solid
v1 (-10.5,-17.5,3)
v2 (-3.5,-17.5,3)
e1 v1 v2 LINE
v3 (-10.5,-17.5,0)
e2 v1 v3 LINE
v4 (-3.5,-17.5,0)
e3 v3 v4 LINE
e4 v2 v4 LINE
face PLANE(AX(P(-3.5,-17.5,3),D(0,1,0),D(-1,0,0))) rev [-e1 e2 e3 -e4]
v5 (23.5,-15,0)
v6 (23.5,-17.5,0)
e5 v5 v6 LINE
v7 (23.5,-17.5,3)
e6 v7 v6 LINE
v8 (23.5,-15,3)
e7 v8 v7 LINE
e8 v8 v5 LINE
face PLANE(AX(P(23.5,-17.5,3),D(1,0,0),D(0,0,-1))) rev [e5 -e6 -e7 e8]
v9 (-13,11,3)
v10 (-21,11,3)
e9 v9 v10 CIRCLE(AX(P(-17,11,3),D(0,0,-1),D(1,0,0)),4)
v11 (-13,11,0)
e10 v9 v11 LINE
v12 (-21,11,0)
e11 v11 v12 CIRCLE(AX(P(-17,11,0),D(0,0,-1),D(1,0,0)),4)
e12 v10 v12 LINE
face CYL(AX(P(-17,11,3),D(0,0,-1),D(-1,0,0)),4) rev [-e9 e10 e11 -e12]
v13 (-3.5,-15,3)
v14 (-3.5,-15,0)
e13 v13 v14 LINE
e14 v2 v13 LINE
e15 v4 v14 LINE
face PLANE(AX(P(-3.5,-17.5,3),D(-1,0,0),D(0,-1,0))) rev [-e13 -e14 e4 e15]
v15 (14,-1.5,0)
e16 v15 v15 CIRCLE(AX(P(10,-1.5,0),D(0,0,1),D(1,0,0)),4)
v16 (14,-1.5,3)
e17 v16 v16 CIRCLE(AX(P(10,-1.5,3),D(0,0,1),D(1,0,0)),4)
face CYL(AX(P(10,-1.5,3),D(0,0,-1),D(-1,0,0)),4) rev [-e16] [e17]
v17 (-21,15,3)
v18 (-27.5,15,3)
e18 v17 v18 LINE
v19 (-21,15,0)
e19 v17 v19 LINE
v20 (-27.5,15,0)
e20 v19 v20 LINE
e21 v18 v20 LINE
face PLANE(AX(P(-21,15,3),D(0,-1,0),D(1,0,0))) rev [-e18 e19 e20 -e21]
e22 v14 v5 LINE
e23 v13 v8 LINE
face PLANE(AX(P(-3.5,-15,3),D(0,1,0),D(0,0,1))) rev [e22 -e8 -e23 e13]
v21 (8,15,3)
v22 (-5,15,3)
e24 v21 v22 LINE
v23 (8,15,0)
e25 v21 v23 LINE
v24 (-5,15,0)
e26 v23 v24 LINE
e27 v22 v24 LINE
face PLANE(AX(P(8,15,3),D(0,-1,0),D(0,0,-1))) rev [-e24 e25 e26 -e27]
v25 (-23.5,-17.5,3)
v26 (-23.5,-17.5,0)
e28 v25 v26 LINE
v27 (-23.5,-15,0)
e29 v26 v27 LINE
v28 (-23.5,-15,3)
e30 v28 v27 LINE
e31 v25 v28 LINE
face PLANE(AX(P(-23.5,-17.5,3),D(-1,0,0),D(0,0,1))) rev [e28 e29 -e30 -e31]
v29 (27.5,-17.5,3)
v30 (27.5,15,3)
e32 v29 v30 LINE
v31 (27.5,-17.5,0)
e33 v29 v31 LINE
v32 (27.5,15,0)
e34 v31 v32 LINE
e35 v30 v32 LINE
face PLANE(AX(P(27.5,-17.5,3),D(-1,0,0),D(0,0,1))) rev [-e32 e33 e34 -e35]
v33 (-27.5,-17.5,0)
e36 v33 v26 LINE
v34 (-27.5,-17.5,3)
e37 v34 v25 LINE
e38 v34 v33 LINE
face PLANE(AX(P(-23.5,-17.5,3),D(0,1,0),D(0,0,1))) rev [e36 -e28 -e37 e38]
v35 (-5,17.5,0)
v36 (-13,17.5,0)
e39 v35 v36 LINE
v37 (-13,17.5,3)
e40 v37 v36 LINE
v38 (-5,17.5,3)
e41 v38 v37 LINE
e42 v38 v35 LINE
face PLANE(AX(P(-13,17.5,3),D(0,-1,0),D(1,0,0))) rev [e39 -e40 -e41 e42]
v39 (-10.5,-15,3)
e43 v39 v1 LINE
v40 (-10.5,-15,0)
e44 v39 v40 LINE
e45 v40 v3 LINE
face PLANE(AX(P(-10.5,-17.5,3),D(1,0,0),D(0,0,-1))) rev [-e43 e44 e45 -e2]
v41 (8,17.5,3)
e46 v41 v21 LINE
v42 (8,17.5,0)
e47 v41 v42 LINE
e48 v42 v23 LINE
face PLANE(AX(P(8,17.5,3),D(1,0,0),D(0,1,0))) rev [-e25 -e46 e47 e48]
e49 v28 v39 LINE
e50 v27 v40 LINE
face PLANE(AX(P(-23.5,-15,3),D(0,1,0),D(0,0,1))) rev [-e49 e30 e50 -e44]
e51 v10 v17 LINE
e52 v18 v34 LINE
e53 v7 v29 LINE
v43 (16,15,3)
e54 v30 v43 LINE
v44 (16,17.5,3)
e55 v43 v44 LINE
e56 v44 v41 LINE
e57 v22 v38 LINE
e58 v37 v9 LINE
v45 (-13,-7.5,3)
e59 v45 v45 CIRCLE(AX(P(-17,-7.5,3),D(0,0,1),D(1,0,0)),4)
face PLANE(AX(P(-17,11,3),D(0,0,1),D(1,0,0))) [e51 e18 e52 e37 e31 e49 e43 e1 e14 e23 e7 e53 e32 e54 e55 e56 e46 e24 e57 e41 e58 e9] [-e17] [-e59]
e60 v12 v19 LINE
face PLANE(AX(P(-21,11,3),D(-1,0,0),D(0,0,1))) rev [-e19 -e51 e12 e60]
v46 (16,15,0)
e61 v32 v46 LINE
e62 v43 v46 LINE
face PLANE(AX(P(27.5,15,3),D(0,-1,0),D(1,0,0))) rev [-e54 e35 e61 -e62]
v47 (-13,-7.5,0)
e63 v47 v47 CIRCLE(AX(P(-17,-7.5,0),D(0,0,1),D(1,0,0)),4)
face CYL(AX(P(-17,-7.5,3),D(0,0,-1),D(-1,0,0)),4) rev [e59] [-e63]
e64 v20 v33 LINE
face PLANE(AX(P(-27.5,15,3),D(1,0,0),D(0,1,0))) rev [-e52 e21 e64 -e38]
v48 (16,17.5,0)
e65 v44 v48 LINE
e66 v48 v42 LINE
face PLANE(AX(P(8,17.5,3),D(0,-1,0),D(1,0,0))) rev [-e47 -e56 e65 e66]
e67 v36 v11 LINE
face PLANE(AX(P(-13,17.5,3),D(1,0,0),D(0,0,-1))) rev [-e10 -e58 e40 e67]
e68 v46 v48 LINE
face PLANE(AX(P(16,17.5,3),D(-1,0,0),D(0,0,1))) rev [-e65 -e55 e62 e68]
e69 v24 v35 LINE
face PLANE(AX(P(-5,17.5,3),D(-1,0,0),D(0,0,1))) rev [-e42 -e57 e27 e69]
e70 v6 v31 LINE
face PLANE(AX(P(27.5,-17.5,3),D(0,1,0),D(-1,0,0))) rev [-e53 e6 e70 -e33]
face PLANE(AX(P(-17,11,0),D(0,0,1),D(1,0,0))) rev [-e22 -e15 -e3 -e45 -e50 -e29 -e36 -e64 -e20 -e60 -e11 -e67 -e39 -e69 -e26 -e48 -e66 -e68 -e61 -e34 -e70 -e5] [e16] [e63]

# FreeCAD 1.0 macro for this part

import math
import FreeCAD as App
import Part
import Sketcher

doc = App.newDocument("Part")
body = doc.addObject("PartDesign::Body", "Body")

# Sketch on XY plane
sketch1 = body.newObject("Sketcher::SketchObject", "Sketch")
sketch1.AttachmentSupport = (doc.getObject("XY_Plane"), [""])
sketch1.MapMode = "FlatFace"
sketch1.addGeometry([
    Part.LineSegment(App.Vector(-21, 15, 0), App.Vector(-27.5, 15, 0)),  # 0
    Part.LineSegment(App.Vector(-27.5, 15, 0), App.Vector(-27.5, -17.5, 0)),  # 1
    Part.LineSegment(App.Vector(-27.5, -17.5, 0), App.Vector(-23.5, -17.5, 0)),  # 2
    Part.LineSegment(App.Vector(-23.5, -17.5, 0), App.Vector(-23.5, -15, 0)),  # 3
    Part.LineSegment(App.Vector(-23.5, -15, 0), App.Vector(-10.5, -15, 0)),  # 4
    Part.LineSegment(App.Vector(-10.5, -15, 0), App.Vector(-10.5, -17.5, 0)),  # 5
    Part.LineSegment(App.Vector(-10.5, -17.5, 0), App.Vector(-3.5, -17.5, 0)),  # 6
    Part.LineSegment(App.Vector(-3.5, -17.5, 0), App.Vector(-3.5, -15, 0)),  # 7
    Part.LineSegment(App.Vector(-3.5, -15, 0), App.Vector(23.5, -15, 0)),  # 8
    Part.LineSegment(App.Vector(23.5, -15, 0), App.Vector(23.5, -17.5, 0)),  # 9
    Part.LineSegment(App.Vector(23.5, -17.5, 0), App.Vector(27.5, -17.5, 0)),  # 10
    Part.LineSegment(App.Vector(27.5, -17.5, 0), App.Vector(27.5, 15, 0)),  # 11
    Part.LineSegment(App.Vector(27.5, 15, 0), App.Vector(16, 15, 0)),  # 12
    Part.LineSegment(App.Vector(16, 15, 0), App.Vector(16, 17.5, 0)),  # 13
    Part.LineSegment(App.Vector(16, 17.5, 0), App.Vector(8, 17.5, 0)),  # 14
    Part.LineSegment(App.Vector(8, 17.5, 0), App.Vector(8, 15, 0)),  # 15
    Part.LineSegment(App.Vector(8, 15, 0), App.Vector(-5, 15, 0)),  # 16
    Part.LineSegment(App.Vector(-5, 15, 0), App.Vector(-5, 17.5, 0)),  # 17
    Part.LineSegment(App.Vector(-5, 17.5, 0), App.Vector(-13, 17.5, 0)),  # 18
    Part.LineSegment(App.Vector(-13, 17.5, 0), App.Vector(-13, 11, 0)),  # 19
    Part.ArcOfCircle(Part.Circle(App.Vector(-17, 11, 0), App.Vector(0, 0, 1), 4), math.radians(180), math.radians(360)),  # 20
    Part.LineSegment(App.Vector(-21, 11, 0), App.Vector(-21, 15, 0)),  # 21
    Part.Circle(App.Vector(-17, -7.5, 0), App.Vector(0, 0, 1), 4),  # 22
    Part.Circle(App.Vector(10, -1.5, 0), App.Vector(0, 0, 1), 4),  # 23
], False)
sketch1.addConstraint([
    Sketcher.Constraint("Coincident", 0, 2, 1, 1),
    Sketcher.Constraint("Coincident", 1, 2, 2, 1),
    Sketcher.Constraint("Coincident", 2, 2, 3, 1),
    Sketcher.Constraint("Coincident", 3, 2, 4, 1),
    Sketcher.Constraint("Coincident", 4, 2, 5, 1),
    Sketcher.Constraint("Coincident", 5, 2, 6, 1),
    Sketcher.Constraint("Coincident", 6, 2, 7, 1),
    Sketcher.Constraint("Coincident", 7, 2, 8, 1),
    Sketcher.Constraint("Coincident", 8, 2, 9, 1),
    Sketcher.Constraint("Coincident", 9, 2, 10, 1),
    Sketcher.Constraint("Coincident", 10, 2, 11, 1),
    Sketcher.Constraint("Coincident", 11, 2, 12, 1),
    Sketcher.Constraint("Coincident", 12, 2, 13, 1),
    Sketcher.Constraint("Coincident", 13, 2, 14, 1),
    Sketcher.Constraint("Coincident", 14, 2, 15, 1),
    Sketcher.Constraint("Coincident", 15, 2, 16, 1),
    Sketcher.Constraint("Coincident", 16, 2, 17, 1),
    Sketcher.Constraint("Coincident", 17, 2, 18, 1),
    Sketcher.Constraint("Coincident", 18, 2, 19, 1),
    Sketcher.Constraint("Tangent", 19, 2, 20, 2),
    Sketcher.Constraint("Tangent", 20, 1, 21, 1),
    Sketcher.Constraint("Coincident", 21, 2, 0, 1),
    Sketcher.Constraint("Horizontal", 0),
    Sketcher.Constraint("Vertical", 1),
    Sketcher.Constraint("Horizontal", 2),
    Sketcher.Constraint("Vertical", 3),
    Sketcher.Constraint("Horizontal", 4),
    Sketcher.Constraint("Vertical", 5),
    Sketcher.Constraint("Horizontal", 6),
    Sketcher.Constraint("Vertical", 7),
    Sketcher.Constraint("Horizontal", 8),
    Sketcher.Constraint("Vertical", 9),
    Sketcher.Constraint("Horizontal", 10),
    Sketcher.Constraint("Vertical", 11),
    Sketcher.Constraint("Horizontal", 12),
    Sketcher.Constraint("Vertical", 13),
    Sketcher.Constraint("Horizontal", 14),
    Sketcher.Constraint("Vertical", 15),
    Sketcher.Constraint("Horizontal", 16),
    Sketcher.Constraint("Vertical", 17),
    Sketcher.Constraint("Horizontal", 18),
    Sketcher.Constraint("Vertical", 19),
    Sketcher.Constraint("Vertical", 21),
    Sketcher.Constraint("Equal", 20, 22),
    Sketcher.Constraint("Equal", 22, 23),
    Sketcher.Constraint("Symmetric", 3, 2, 8, 2, -2),
    Sketcher.Constraint("Symmetric", 1, 2, 10, 2, -2),
    Sketcher.Constraint("Horizontal", 2, 2, 5, 2),
    Sketcher.Constraint("Horizontal", 0, 2, 11, 2),
    Sketcher.Constraint("Horizontal", 12, 2, 15, 2),
    Sketcher.Constraint("Horizontal", 14, 2, 17, 2),
    Sketcher.Constraint("Vertical", 20, 3, 22, 3),
    Sketcher.Constraint("Equal", 4, 16),
    Sketcher.Constraint("Equal", 14, 18),
    Sketcher.Constraint("Equal", 9, 13),
    Sketcher.Constraint("Equal", 0, 19),
    Sketcher.Constraint("Equal", 10, 21),
    Sketcher.Constraint("Diameter", 22, 8.0),
    Sketcher.Constraint("DistanceX", 2, 1, 2, 2, 4.0),
    Sketcher.Constraint("DistanceX", 4, 1, 4, 2, 13.0),
    Sketcher.Constraint("DistanceX", 6, 1, 6, 2, 7.0),
    Sketcher.Constraint("DistanceX", 8, 1, 8, 2, 27.0),
    Sketcher.Constraint("DistanceX", 14, 2, 14, 1, 8.0),
    Sketcher.Constraint("DistanceX", 0, 2, 0, 1, 6.5),
    Sketcher.Constraint("DistanceY", 1, 2, 1, 1, 32.5),
    Sketcher.Constraint("DistanceY", -1, 1, 20, 3, 11.0),
    Sketcher.Constraint("DistanceX", -1, 1, 23, 3, 10.0),
    Sketcher.Constraint("DistanceY", 22, 3, 23, 3, 6.0),
    Sketcher.Constraint("DistanceY", 1, 2, 22, 3, 10.0),
])
pad1 = body.newObject("PartDesign::Pad", "Pad")
pad1.Profile = sketch1
pad1.Length = 3

doc.recompute()
